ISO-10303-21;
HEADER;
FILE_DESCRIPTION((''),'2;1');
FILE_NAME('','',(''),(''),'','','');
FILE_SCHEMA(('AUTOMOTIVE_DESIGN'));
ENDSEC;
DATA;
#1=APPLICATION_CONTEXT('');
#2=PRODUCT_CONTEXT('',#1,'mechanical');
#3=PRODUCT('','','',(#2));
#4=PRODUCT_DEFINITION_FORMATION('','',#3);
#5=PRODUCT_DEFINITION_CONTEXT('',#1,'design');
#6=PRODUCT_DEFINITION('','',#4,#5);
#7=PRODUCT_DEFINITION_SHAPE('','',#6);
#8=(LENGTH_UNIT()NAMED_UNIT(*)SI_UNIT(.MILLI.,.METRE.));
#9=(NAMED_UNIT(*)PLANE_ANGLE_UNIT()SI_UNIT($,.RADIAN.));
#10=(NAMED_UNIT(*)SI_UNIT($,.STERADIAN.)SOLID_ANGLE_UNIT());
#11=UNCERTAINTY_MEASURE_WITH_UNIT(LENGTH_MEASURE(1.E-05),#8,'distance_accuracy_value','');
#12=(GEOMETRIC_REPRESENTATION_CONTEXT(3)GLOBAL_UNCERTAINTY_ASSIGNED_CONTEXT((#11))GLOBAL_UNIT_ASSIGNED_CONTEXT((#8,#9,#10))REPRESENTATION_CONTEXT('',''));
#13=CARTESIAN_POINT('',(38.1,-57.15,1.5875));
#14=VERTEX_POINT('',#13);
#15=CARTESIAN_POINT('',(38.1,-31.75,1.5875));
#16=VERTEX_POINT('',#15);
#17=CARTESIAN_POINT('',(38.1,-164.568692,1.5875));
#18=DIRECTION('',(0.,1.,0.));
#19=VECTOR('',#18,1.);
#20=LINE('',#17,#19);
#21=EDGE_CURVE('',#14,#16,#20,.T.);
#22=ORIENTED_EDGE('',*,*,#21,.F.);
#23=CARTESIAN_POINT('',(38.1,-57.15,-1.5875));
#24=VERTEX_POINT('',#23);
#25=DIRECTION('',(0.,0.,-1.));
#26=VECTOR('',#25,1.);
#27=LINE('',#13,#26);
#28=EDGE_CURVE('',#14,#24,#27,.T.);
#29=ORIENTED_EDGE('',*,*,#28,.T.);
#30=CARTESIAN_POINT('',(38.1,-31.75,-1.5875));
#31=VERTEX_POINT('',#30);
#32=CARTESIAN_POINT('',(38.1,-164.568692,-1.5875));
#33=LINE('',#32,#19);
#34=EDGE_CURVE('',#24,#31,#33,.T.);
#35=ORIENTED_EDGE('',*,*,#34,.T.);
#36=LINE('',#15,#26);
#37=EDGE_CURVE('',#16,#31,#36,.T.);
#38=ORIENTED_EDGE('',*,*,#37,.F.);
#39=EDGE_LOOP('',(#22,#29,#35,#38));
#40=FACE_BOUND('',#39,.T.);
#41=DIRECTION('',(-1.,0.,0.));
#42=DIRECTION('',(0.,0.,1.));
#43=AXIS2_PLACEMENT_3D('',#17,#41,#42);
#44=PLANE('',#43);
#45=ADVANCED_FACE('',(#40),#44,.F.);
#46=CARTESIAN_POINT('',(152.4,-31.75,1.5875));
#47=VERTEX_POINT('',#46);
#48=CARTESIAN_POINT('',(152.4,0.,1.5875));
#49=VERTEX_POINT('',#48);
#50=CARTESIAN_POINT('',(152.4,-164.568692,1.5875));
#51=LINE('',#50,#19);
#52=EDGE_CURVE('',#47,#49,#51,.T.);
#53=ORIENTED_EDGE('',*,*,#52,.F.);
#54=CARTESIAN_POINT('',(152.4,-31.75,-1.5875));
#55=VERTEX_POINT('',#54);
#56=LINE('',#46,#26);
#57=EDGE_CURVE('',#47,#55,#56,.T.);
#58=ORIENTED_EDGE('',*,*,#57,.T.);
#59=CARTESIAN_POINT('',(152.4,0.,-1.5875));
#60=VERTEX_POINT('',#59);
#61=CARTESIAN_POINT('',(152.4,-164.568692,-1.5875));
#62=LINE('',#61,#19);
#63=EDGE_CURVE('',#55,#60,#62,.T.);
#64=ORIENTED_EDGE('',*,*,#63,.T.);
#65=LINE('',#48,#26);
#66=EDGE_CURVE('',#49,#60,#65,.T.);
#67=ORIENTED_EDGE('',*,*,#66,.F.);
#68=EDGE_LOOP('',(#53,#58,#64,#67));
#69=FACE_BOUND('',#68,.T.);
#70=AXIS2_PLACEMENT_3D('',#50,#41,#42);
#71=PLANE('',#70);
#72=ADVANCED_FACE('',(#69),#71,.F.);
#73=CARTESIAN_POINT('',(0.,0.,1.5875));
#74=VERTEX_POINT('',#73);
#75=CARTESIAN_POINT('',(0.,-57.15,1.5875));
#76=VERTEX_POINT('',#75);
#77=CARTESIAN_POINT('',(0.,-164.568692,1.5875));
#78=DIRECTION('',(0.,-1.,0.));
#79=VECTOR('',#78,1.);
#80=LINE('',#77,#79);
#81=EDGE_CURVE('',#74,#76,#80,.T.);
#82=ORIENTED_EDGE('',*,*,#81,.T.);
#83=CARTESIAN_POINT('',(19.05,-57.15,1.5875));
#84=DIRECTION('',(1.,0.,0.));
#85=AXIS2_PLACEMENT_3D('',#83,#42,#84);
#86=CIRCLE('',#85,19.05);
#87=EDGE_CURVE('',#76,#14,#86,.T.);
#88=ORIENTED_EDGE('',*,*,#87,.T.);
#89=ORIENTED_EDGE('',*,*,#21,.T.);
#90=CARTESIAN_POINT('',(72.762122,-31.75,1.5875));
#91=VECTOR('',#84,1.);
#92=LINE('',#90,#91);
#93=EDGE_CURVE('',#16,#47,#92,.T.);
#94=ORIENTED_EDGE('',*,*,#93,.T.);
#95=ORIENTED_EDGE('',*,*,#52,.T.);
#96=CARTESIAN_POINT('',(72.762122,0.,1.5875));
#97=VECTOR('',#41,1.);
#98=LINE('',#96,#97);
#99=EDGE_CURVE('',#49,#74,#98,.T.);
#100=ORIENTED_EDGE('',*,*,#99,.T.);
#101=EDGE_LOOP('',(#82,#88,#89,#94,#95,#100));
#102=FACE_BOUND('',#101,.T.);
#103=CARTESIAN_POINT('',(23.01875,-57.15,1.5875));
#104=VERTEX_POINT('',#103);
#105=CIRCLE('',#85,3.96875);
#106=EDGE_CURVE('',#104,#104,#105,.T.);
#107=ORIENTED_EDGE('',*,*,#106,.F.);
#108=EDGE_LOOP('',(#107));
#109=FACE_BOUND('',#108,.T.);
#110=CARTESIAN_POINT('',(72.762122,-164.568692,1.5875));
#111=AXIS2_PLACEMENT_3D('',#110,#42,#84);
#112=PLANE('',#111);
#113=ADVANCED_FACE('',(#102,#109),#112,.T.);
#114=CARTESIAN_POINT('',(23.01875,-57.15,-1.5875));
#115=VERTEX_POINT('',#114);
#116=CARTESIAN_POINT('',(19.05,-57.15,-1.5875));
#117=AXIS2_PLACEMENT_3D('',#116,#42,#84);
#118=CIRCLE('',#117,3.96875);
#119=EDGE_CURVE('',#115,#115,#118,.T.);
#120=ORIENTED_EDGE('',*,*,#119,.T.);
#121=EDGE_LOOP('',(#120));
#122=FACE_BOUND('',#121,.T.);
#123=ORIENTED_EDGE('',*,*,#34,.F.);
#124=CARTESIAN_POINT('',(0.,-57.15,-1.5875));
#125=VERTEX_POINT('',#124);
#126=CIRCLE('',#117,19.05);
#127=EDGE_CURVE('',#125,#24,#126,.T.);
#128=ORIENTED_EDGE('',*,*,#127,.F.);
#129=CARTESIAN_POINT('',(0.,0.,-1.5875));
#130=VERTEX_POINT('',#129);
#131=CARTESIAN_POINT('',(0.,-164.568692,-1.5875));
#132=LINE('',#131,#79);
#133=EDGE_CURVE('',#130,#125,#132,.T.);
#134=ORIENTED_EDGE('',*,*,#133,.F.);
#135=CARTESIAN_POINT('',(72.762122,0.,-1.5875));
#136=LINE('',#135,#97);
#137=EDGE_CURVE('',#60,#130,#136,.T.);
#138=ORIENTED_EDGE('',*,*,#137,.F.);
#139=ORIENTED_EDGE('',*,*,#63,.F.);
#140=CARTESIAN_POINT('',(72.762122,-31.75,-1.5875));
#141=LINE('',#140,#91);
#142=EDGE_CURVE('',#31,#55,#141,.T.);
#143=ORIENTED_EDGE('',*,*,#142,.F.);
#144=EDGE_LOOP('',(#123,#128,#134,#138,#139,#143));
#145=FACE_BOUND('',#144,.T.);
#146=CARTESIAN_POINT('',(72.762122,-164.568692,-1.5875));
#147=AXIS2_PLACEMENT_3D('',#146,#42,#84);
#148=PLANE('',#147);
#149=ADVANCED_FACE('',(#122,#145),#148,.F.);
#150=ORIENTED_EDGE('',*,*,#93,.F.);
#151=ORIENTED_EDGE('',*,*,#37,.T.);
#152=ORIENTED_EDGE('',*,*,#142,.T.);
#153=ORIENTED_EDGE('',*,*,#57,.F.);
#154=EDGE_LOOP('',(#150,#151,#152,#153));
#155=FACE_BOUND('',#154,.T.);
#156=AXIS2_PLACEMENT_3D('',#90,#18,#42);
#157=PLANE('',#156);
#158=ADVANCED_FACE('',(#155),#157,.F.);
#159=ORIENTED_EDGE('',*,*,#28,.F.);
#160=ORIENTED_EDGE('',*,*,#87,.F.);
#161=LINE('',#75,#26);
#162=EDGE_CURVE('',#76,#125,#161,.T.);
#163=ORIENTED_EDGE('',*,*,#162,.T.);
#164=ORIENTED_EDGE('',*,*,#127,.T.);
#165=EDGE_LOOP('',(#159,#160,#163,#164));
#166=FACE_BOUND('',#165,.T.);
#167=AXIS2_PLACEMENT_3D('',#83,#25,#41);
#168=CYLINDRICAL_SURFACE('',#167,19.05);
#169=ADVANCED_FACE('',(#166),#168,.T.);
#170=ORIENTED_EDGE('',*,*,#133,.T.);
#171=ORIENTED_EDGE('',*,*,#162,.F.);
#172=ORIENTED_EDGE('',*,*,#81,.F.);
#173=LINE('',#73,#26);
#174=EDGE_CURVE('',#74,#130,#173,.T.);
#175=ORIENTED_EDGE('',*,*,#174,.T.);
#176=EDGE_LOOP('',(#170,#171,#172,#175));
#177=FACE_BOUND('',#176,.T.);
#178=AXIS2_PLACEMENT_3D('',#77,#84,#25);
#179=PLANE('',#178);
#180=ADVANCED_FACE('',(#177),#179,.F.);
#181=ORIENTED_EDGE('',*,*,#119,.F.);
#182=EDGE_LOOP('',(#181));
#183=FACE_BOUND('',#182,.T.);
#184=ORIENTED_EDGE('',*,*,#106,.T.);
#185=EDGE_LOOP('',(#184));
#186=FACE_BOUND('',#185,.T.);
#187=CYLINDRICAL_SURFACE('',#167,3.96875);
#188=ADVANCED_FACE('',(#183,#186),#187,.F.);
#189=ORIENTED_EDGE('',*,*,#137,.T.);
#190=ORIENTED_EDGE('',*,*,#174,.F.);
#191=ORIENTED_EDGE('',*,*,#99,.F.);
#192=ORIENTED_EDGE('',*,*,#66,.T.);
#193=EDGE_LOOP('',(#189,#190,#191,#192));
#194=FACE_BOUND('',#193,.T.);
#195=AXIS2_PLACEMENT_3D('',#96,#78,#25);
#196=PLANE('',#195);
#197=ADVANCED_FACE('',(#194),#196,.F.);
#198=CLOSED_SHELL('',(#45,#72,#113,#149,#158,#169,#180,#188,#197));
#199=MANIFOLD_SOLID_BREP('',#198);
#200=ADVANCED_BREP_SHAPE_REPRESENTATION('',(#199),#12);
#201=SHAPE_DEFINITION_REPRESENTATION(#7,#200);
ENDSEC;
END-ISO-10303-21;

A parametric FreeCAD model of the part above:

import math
import FreeCAD as App
import Part
import Sketcher
Q = App.Units.Quantity

doc = App.newDocument("Part")
params = doc.addObject("Spreadsheet::Sheet", "Params")
for row, (alias, value) in enumerate([
    ("sketch1_width", "6 in"),
    ("sketch1_height", "1 in"),
    ("sketch1_radius", "0.75 in"),
    ("sketch1_diameter", "0.3125 in"),
    ("sketch1_height2", "2.25 in"),
    ("pad1_length", "0.125 in"),
], start=1):
    params.set(f"A{row}", alias)
    params.set(f"B{row}", "=" + value)
    params.setAlias(f"B{row}", alias)

body = doc.addObject("PartDesign::Body", "Body")

sketch1 = body.newObject("Sketcher::SketchObject", "Sketch")
sketch1.AttachmentSupport = (doc.getObject("XY_Plane"), [""])
sketch1.MapMode = "FlatFace"
sketch1.addGeometry(Part.LineSegment(App.Vector(0, 0, 0), App.Vector(0, -57.15, 0)), False)
sketch1.addGeometry(Part.ArcOfCircle(Part.Circle(App.Vector(19.05, -57.15, 0), App.Vector(0, 0, 1), 19.05), math.radians(180), math.radians(360)), False)
sketch1.addGeometry(Part.LineSegment(App.Vector(38.1, -57.15, 0), App.Vector(38.1, -31.75, 0)), False)
sketch1.addGeometry(Part.LineSegment(App.Vector(38.1, -31.75, 0), App.Vector(152.4, -31.75, 0)), False)
sketch1.addGeometry(Part.LineSegment(App.Vector(152.4, -31.75, 0), App.Vector(152.4, 0, 0)), False)
sketch1.addGeometry(Part.LineSegment(App.Vector(152.4, 0, 0), App.Vector(0, 0, 0)), False)
sketch1.addGeometry(Part.Circle(App.Vector(19.05, -57.15, 0), App.Vector(0, 0, 1), 3.96875), False)
sketch1.addConstraint(Sketcher.Constraint("Tangent", 0, 2, 1, 1))
sketch1.addConstraint(Sketcher.Constraint("Tangent", 1, 2, 2, 1))
sketch1.addConstraint(Sketcher.Constraint("Coincident", 2, 2, 3, 1))
sketch1.addConstraint(Sketcher.Constraint("Coincident", 3, 2, 4, 1))
sketch1.addConstraint(Sketcher.Constraint("Coincident", 4, 2, 5, 1))
sketch1.addConstraint(Sketcher.Constraint("Coincident", 5, 2, 0, 1))
sketch1.addConstraint(Sketcher.Constraint("Vertical", 0))
sketch1.addConstraint(Sketcher.Constraint("Vertical", 2))
sketch1.addConstraint(Sketcher.Constraint("Horizontal", 3))
sketch1.addConstraint(Sketcher.Constraint("Vertical", 4))
sketch1.addConstraint(Sketcher.Constraint("Horizontal", 5))
sketch1.addConstraint(Sketcher.Constraint("Coincident", 5, 2, -1, 1))
sketch1.addConstraint(Sketcher.Constraint("Coincident", 6, 3, 1, 3))
sketch1.addConstraint(Sketcher.Constraint("DistanceX", 5, 2, 5, 1, Q("6 in")))
sketch1.addConstraint(Sketcher.Constraint("DistanceY", 2, 1, 2, 2, Q("1 in")))
sketch1.addConstraint(Sketcher.Constraint("Radius", 1, Q("0.75 in")))
sketch1.addConstraint(Sketcher.Constraint("Diameter", 6, Q("0.3125 in")))
sketch1.addConstraint(Sketcher.Constraint("DistanceY", 0, 2, 0, 1, Q("2.25 in")))
sketch1.setExpression("Constraints[13]", "Params.sketch1_width")
sketch1.setExpression("Constraints[14]", "Params.sketch1_height")
sketch1.setExpression("Constraints[15]", "Params.sketch1_radius")
sketch1.setExpression("Constraints[16]", "Params.sketch1_diameter")
sketch1.setExpression("Constraints[17]", "Params.sketch1_height2")
pad1 = body.newObject("PartDesign::Pad", "Pad")
pad1.Profile = sketch1
pad1.setExpression("Length", "Params.pad1_length")
pad1.Midplane = True

doc.recompute()
